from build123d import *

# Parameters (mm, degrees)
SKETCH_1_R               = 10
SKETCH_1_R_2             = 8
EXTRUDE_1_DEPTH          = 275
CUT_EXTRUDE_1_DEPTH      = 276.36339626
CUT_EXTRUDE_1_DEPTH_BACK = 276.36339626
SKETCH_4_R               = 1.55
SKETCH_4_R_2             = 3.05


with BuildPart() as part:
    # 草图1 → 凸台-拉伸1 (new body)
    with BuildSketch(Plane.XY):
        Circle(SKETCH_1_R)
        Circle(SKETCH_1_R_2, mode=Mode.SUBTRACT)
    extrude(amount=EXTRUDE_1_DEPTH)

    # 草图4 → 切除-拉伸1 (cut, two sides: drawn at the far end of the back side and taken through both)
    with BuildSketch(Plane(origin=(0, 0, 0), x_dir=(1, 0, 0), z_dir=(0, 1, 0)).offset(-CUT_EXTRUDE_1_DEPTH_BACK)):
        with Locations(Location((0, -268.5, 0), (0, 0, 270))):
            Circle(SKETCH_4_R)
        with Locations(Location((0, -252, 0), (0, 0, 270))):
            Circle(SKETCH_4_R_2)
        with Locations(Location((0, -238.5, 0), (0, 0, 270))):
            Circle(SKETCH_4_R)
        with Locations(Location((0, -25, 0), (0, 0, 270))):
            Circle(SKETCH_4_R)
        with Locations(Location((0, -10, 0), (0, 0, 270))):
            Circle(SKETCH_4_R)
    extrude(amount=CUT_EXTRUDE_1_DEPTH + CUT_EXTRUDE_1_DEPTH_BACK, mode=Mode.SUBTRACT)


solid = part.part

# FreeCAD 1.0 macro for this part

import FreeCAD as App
import Part
import Sketcher

V = App.Vector

doc = App.newDocument("Part")
body = doc.addObject("PartDesign::Body", "Body")

sketch1 = body.newObject("Sketcher::SketchObject", "Sketch")
sketch1.AttachmentSupport = (doc.getObject("XY_Plane"), [""])
sketch1.MapMode = "FlatFace"
sketch1.addGeometry([
    Part.Circle(V(0, 0, 0), V(0, 0, 1), 10),
    Part.Circle(V(0, 0, 0), V(0, 0, 1), 8),
], False)
sketch1.addConstraint([
    Sketcher.Constraint("Coincident", 0, 3, -1, 1),
    Sketcher.Constraint("Coincident", 1, 3, -1, 1),
    Sketcher.Constraint("Diameter", 0, 20.0),
    Sketcher.Constraint("Diameter", 1, 16.0),
])
pad1 = body.newObject("PartDesign::Pad", "Pad")
pad1.Profile = sketch1
pad1.Length = 275

sketch2 = body.newObject("Sketcher::SketchObject", "Sketch001")
sketch2.AttachmentSupport = (doc.getObject("XZ_Plane"), [""])
sketch2.MapMode = "FlatFace"
sketch2.addGeometry([
    Part.Circle(V(0, 268.5, 0), V(0, 0, 1), 1.6),
    Part.Circle(V(0, 252, 0), V(0, 0, 1), 3),
    Part.Circle(V(0, 238.5, 0), V(0, 0, 1), 1.6),
    Part.Circle(V(0, 25, 0), V(0, 0, 1), 1.6),
    Part.Circle(V(0, 10, 0), V(0, 0, 1), 1.6),
], False)
sketch2.addConstraint([
    Sketcher.Constraint("Equal", 0, 2),
    Sketcher.Constraint("Equal", 2, 3),
    Sketcher.Constraint("Equal", 3, 4),
    Sketcher.Constraint("PointOnObject", 0, 3, -2),
    Sketcher.Constraint("PointOnObject", 1, 3, -2),
    Sketcher.Constraint("PointOnObject", 2, 3, -2),
    Sketcher.Constraint("PointOnObject", 3, 3, -2),
    Sketcher.Constraint("PointOnObject", 4, 3, -2),
    Sketcher.Constraint("Diameter", 0, 3.1),
    Sketcher.Constraint("Diameter", 1, 6.1),
    Sketcher.Constraint("DistanceY", -1, 1, 1, 3, 252.0),
    Sketcher.Constraint("DistanceY", -1, 1, 3, 3, 25.0),
    Sketcher.Constraint("DistanceY", -1, 1, 4, 3, 10.0),
    Sketcher.Constraint("DistanceY", 2, 3, 0, 3, 30.0),
    Sketcher.Constraint("DistanceY", -1, 1, 0, 3, 268.5),
])
pocket1 = body.newObject("PartDesign::Pocket", "Pocket")
pocket1.Profile = sketch2
pocket1.Type = "ThroughAll"
pocket1.Midplane = True

doc.recompute()
